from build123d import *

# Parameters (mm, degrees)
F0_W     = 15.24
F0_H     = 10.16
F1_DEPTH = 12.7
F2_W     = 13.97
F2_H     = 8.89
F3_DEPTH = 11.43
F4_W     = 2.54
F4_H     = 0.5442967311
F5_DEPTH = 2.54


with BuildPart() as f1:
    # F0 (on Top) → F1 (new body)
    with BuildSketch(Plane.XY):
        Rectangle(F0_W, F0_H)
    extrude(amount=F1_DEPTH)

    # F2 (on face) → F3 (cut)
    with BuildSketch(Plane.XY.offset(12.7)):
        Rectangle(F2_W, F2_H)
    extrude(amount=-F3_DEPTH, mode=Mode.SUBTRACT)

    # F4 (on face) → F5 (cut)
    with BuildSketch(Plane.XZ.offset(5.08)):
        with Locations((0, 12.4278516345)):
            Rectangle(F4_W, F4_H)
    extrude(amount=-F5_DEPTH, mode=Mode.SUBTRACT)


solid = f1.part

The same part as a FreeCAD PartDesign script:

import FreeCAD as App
import Part
import Sketcher
Q = App.Units.Quantity


def add_polygon(sketch, points):
    """Adds a closed chain of lines whose ends are joined by coincident constraints."""
    first, n = sketch.GeometryCount, len(points)
    for a, b in zip(points, points[1:] + points[:1]):
        sketch.addGeometry(Part.LineSegment(App.Vector(*a, 0), App.Vector(*b, 0)), False)
    for i in range(n):
        sketch.addConstraint(Sketcher.Constraint("Coincident", first + i, 2, first + (i + 1) % n, 1))

doc = App.newDocument("Part")
body = doc.addObject("PartDesign::Body", "Body")

# Sketch on XY plane
sketch1 = body.newObject("Sketcher::SketchObject", "Sketch")
sketch1.AttachmentSupport = (doc.getObject("XY_Plane"), [""])
sketch1.MapMode = "FlatFace"
add_polygon(sketch1, [(-8, 5), (-8, -5), (8, -5), (8, 5)])  # lines 0-3
sketch1.addConstraint(Sketcher.Constraint("Vertical", 0))
sketch1.addConstraint(Sketcher.Constraint("Horizontal", 1))
sketch1.addConstraint(Sketcher.Constraint("Vertical", 2))
sketch1.addConstraint(Sketcher.Constraint("Horizontal", 3))
sketch1.addConstraint(Sketcher.Constraint("Symmetric", 0, 2, 2, 2, -1, 1))
sketch1.addConstraint(Sketcher.Constraint("DistanceX", 1, 1, 1, 2, Q("0.6 in")))
sketch1.addConstraint(Sketcher.Constraint("DistanceY", 0, 2, 0, 1, Q("0.4 in")))
pad1 = body.newObject("PartDesign::Pad", "Pad")
pad1.Profile = sketch1
pad1.Length = Q("0.5 in")

# Sketch on XY plane
sketch2 = body.newObject("Sketcher::SketchObject", "Sketch001")
sketch2.AttachmentSupport = (doc.getObject("XY_Plane"), [""])
sketch2.MapMode = "FlatFace"
sketch2.AttachmentOffset = App.Placement(App.Vector(0, 0, 0.5 * 25.4), App.Rotation())
add_polygon(sketch2, [(-7, 4), (-7, -4), (7, -4), (7, 4)])  # lines 0-3
sketch2.addConstraint(Sketcher.Constraint("Vertical", 0))
sketch2.addConstraint(Sketcher.Constraint("Horizontal", 1))
sketch2.addConstraint(Sketcher.Constraint("Vertical", 2))
sketch2.addConstraint(Sketcher.Constraint("Horizontal", 3))
sketch2.addConstraint(Sketcher.Constraint("Symmetric", 0, 2, 2, 2, -1, 1))
sketch2.addConstraint(Sketcher.Constraint("DistanceX", 1, 1, 1, 2, Q("0.55 in")))
sketch2.addConstraint(Sketcher.Constraint("DistanceY", 0, 2, 0, 1, Q("0.35 in")))
pocket1 = body.newObject("PartDesign::Pocket", "Pocket")
pocket1.Profile = sketch2
pocket1.Length = Q("0.45 in")

# Sketch on XZ plane
sketch3 = body.newObject("Sketcher::SketchObject", "Sketch002")
sketch3.AttachmentSupport = (doc.getObject("XZ_Plane"), [""])
sketch3.MapMode = "FlatFace"
sketch3.AttachmentOffset = App.Placement(App.Vector(0, 0, 0.2 * 25.4), App.Rotation())
add_polygon(sketch3, [(-1.3, 12.7), (-1.3, 12.2), (1.3, 12.2), (1.3, 12.7)])  # lines 0-3
sketch3.addConstraint(Sketcher.Constraint("Vertical", 0))
sketch3.addConstraint(Sketcher.Constraint("Horizontal", 1))
sketch3.addConstraint(Sketcher.Constraint("Vertical", 2))
sketch3.addConstraint(Sketcher.Constraint("Horizontal", 3))
sketch3.addConstraint(Sketcher.Constraint("DistanceX", 1, 1, 1, 2, Q("0.1 in")))
sketch3.addConstraint(Sketcher.Constraint("DistanceY", -1, 1, 2, 2, Q("0.5 in")))
sketch3.addConstraint(Sketcher.Constraint("DistanceX", 0, 2, -1, 1, Q("0.05 in")))
sketch3.addConstraint(Sketcher.Constraint("DistanceY", 0, 2, 0, 1, 0.544297))
pocket2 = body.newObject("PartDesign::Pocket", "Pocket001")
pocket2.Profile = sketch3
pocket2.Length = Q("0.1 in")

doc.recompute()
